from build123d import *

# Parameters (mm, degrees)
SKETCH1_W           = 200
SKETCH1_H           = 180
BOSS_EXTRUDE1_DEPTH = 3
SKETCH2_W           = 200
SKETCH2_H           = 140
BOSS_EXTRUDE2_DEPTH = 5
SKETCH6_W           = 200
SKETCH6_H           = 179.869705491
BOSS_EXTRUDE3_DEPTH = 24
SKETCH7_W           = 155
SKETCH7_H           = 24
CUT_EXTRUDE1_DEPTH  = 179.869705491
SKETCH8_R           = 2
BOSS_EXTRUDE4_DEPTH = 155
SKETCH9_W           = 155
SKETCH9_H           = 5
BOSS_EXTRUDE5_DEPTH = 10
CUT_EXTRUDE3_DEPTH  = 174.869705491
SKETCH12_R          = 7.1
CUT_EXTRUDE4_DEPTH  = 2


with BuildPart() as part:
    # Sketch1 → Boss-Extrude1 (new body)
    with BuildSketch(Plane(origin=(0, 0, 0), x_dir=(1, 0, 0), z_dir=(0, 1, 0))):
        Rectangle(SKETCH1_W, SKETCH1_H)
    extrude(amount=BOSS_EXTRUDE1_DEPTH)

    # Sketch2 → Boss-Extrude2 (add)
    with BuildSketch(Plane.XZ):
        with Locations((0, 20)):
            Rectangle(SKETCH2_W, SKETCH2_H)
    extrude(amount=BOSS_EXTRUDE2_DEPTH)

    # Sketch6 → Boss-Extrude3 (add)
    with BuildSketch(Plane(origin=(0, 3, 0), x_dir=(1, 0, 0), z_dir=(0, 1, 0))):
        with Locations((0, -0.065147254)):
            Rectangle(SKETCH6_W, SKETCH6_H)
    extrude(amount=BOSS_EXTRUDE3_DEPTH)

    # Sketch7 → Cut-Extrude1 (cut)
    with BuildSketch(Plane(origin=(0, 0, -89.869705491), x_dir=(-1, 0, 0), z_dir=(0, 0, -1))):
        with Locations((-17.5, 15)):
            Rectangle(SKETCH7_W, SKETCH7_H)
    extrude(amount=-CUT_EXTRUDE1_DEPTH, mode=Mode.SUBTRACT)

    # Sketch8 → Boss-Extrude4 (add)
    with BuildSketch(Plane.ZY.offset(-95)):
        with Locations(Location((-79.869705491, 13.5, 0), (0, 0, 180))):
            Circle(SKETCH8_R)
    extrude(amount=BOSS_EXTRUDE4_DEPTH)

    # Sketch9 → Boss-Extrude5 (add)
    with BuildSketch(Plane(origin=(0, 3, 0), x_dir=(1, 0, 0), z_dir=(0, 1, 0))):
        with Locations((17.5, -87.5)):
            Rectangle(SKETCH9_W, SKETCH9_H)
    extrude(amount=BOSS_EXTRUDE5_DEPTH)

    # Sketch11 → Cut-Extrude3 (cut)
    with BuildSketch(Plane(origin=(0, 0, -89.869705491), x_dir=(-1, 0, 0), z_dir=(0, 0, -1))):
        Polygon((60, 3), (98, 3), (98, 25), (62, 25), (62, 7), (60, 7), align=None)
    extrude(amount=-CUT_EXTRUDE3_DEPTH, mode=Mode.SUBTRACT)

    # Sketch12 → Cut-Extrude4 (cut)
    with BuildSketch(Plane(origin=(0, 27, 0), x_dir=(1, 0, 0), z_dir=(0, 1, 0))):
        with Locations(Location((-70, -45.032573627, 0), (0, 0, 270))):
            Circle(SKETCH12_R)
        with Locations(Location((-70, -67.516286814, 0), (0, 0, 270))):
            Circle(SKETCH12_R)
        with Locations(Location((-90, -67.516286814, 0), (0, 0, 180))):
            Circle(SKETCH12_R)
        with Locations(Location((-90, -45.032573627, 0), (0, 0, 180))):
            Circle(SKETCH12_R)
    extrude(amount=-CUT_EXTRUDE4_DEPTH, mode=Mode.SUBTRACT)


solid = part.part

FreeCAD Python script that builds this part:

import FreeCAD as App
import Part
import Sketcher

V = App.Vector
Q = App.Units.Quantity


def add_polygon(sketch, points):
    """Adds a closed chain of lines whose ends are joined by coincident constraints."""
    first, n = sketch.GeometryCount, len(points)
    for a, b in zip(points, points[1:] + points[:1]):
        sketch.addGeometry(Part.LineSegment(App.Vector(*a, 0), App.Vector(*b, 0)), False)
    for i in range(n):
        sketch.addConstraint(Sketcher.Constraint("Coincident", first + i, 2, first + (i + 1) % n, 1))

doc = App.newDocument("Part")
body = doc.addObject("PartDesign::Body", "Body")

# Sketch on XZ plane
sketch1 = doc.addObject("Sketcher::SketchObject", "Sketch")
body.addObject(sketch1)
sketch1.AttachmentSupport = (doc.XZ_Plane, [""])
sketch1.MapMode = "FlatFace"
add_polygon(sketch1, [(-100, -90), (-100, 90), (100, 90), (100, -90)])  # lines 0-3
sketch1.addConstraint([
    Sketcher.Constraint("Vertical", 0),
    Sketcher.Constraint("Horizontal", 1),
    Sketcher.Constraint("Vertical", 2),
    Sketcher.Constraint("Horizontal", 3),
    Sketcher.Constraint("Symmetric", 0, 2, 2, 2, -1, 1),
    Sketcher.Constraint("DistanceX", 1, 1, 1, 2, Q("200 mm")),
    Sketcher.Constraint("DistanceY", 0, 1, 0, 2, Q("180 mm")),
])
pad1 = doc.addObject("PartDesign::Pad", "Pad")
body.addObject(pad1)
pad1.Profile = sketch1
pad1.Length = 3
pad1.Reversed = True

# Sketch on XZ plane
sketch2 = doc.addObject("Sketcher::SketchObject", "Sketch001")
body.addObject(sketch2)
sketch2.AttachmentSupport = (doc.XZ_Plane, [""])
sketch2.MapMode = "FlatFace"
add_polygon(sketch2, [(-100, 90), (-100, -50), (100, -50), (100, 90)])  # lines 0-3
sketch2.addConstraint([
    Sketcher.Constraint("Vertical", 0),
    Sketcher.Constraint("Horizontal", 1),
    Sketcher.Constraint("Vertical", 2),
    Sketcher.Constraint("Horizontal", 3),
    Sketcher.Constraint("DistanceX", 1, 1, 1, 2, Q("200 mm")),
    Sketcher.Constraint("DistanceY", 0, 2, 0, 1, Q("140 mm")),
    Sketcher.Constraint("DistanceX", 0, 2, -1, 1, Q("100 mm")),
    Sketcher.Constraint("DistanceY", 0, 2, -1, 1, Q("50 mm")),
])
pad2 = doc.addObject("PartDesign::Pad", "Pad001")
body.addObject(pad2)
pad2.Profile = sketch2
pad2.Length = 5

# Sketch on XZ plane
sketch3 = doc.addObject("Sketcher::SketchObject", "Sketch002")
body.addObject(sketch3)
sketch3.AttachmentSupport = (doc.XZ_Plane, [""])
sketch3.MapMode = "FlatFace"
sketch3.AttachmentOffset = App.Placement(V(0, 0, -3), App.Rotation())
add_polygon(sketch3, [(-100, -90), (-100, 90), (100, 90), (100, -90)])  # lines 0-3
sketch3.addConstraint([
    Sketcher.Constraint("Vertical", 0),
    Sketcher.Constraint("Horizontal", 1),
    Sketcher.Constraint("Vertical", 2),
    Sketcher.Constraint("Horizontal", 3),
    Sketcher.Constraint("DistanceX", 1, 1, 1, 2, Q("200 mm")),
    Sketcher.Constraint("DistanceX", 0, 2, -1, 1, Q("100 mm")),
    Sketcher.Constraint("DistanceY", -1, 1, 0, 2, Q("90 mm")),
    Sketcher.Constraint("DistanceY", 0, 1, 0, 2, Q("179.869705 mm")),
])
pad3 = doc.addObject("PartDesign::Pad", "Pad002")
body.addObject(pad3)
pad3.Profile = sketch3
pad3.Length = 24
pad3.Reversed = True

# Sketch on XY plane
sketch4 = doc.addObject("Sketcher::SketchObject", "Sketch003")
body.addObject(sketch4)
sketch4.AttachmentSupport = (doc.XY_Plane, [""])
sketch4.MapMode = "FlatFace"
sketch4.AttachmentOffset = App.Placement(V(0, 0, -89.869705), App.Rotation())
add_polygon(sketch4, [(95, 27), (95, 3), (-60, 3), (-60, 27)])  # lines 0-3
sketch4.addConstraint([
    Sketcher.Constraint("Vertical", 0),
    Sketcher.Constraint("Horizontal", 1),
    Sketcher.Constraint("Vertical", 2),
    Sketcher.Constraint("Horizontal", 3),
    Sketcher.Constraint("DistanceX", 1, 2, 1, 1, Q("155 mm")),
    Sketcher.Constraint("DistanceY", 0, 2, 0, 1, Q("24 mm")),
    Sketcher.Constraint("DistanceX", -1, 1, 0, 2, Q("95 mm")),
    Sketcher.Constraint("DistanceY", -1, 1, 0, 2, Q("3 mm")),
])
pocket1 = doc.addObject("PartDesign::Pocket", "Pocket")
body.addObject(pocket1)
pocket1.Profile = sketch4
pocket1.Length = 179.869705
pocket1.Reversed = True

# Sketch on YZ plane
sketch5 = doc.addObject("Sketcher::SketchObject", "Sketch004")
body.addObject(sketch5)
sketch5.AttachmentSupport = (doc.YZ_Plane, [""])
sketch5.MapMode = "FlatFace"
sketch5.AttachmentOffset = App.Placement(V(0, 0, 95), App.Rotation())
sketch5.addGeometry(Part.Circle(V(13.5, -79.9, 0), V(0, 0, 1), 2), False)
sketch5.addConstraint([
    Sketcher.Constraint("Diameter", 0, Q("4 mm")),
    Sketcher.Constraint("DistanceX", -1, 1, 0, 3, Q("13.5 mm")),
    Sketcher.Constraint("DistanceY", 0, 3, -1, 1, Q("79.869705 mm")),
])
pad4 = doc.addObject("PartDesign::Pad", "Pad003")
body.addObject(pad4)
pad4.Profile = sketch5
pad4.Length = 155
pad4.Reversed = True

# Sketch on XZ plane
sketch6 = doc.addObject("Sketcher::SketchObject", "Sketch005")
body.addObject(sketch6)
sketch6.AttachmentSupport = (doc.XZ_Plane, [""])
sketch6.MapMode = "FlatFace"
sketch6.AttachmentOffset = App.Placement(V(0, 0, -3), App.Rotation())
add_polygon(sketch6, [(-60, 85), (-60, 90), (95, 90), (95, 85)])  # lines 0-3
sketch6.addConstraint([
    Sketcher.Constraint("Vertical", 0),
    Sketcher.Constraint("Horizontal", 1),
    Sketcher.Constraint("Vertical", 2),
    Sketcher.Constraint("Horizontal", 3),
    Sketcher.Constraint("DistanceX", 1, 1, 1, 2, Q("155 mm")),
    Sketcher.Constraint("DistanceY", 0, 1, 0, 2, Q("5 mm")),
    Sketcher.Constraint("DistanceX", 0, 2, -1, 1, Q("60 mm")),
    Sketcher.Constraint("DistanceY", -1, 1, 0, 2, Q("90 mm")),
])
pad5 = doc.addObject("PartDesign::Pad", "Pad004")
body.addObject(pad5)
pad5.Profile = sketch6
pad5.Length = 10
pad5.Reversed = True

# Sketch on XY plane
sketch7 = doc.addObject("Sketcher::SketchObject", "Sketch006")
body.addObject(sketch7)
sketch7.AttachmentSupport = (doc.XY_Plane, [""])
sketch7.MapMode = "FlatFace"
sketch7.AttachmentOffset = App.Placement(V(0, 0, -89.869705), App.Rotation())
add_polygon(sketch7, [(-60, 3), (-98, 3), (-98, 25), (-62, 25), (-62, 7), (-60, 7)])  # lines 0-5
sketch7.addConstraint([
    Sketcher.Constraint("Horizontal", 0),
    Sketcher.Constraint("Vertical", 1),
    Sketcher.Constraint("Horizontal", 2),
    Sketcher.Constraint("Vertical", 3),
    Sketcher.Constraint("Horizontal", 4),
    Sketcher.Constraint("Vertical", 5),
    Sketcher.Constraint("DistanceX", 0, 2, 0, 1, Q("38 mm")),
    Sketcher.Constraint("DistanceX", 2, 1, 2, 2, Q("36 mm")),
    Sketcher.Constraint("DistanceY", 1, 1, 1, 2, Q("22 mm")),
    Sketcher.Constraint("DistanceY", 3, 2, 3, 1, Q("18 mm")),
    Sketcher.Constraint("DistanceX", 0, 2, -1, 1, Q("98 mm")),
    Sketcher.Constraint("DistanceY", -1, 1, 0, 2, Q("3 mm")),
])
pocket2 = doc.addObject("PartDesign::Pocket", "Pocket001")
body.addObject(pocket2)
pocket2.Profile = sketch7
pocket2.Length = 174.869705
pocket2.Reversed = True

# Sketch on XZ plane
sketch8 = doc.addObject("Sketcher::SketchObject", "Sketch007")
body.addObject(sketch8)
sketch8.AttachmentSupport = (doc.XZ_Plane, [""])
sketch8.MapMode = "FlatFace"
sketch8.AttachmentOffset = App.Placement(V(0, 0, -27), App.Rotation())
sketch8.addGeometry([
    Part.Circle(V(-70, 45, 0), V(0, 0, 1), 7),
    Part.Circle(V(-70, 68, 0), V(0, 0, 1), 7),
    Part.Circle(V(-90, 68, 0), V(0, 0, 1), 7),
    Part.Circle(V(-90, 45, 0), V(0, 0, 1), 7),
], False)
sketch8.addConstraint([
    Sketcher.Constraint("Equal", 0, 1),
    Sketcher.Constraint("Equal", 1, 2),
    Sketcher.Constraint("Equal", 2, 3),
    Sketcher.Constraint("Horizontal", 1, 3, 2, 3),
    Sketcher.Constraint("Horizontal", 0, 3, 3, 3),
    Sketcher.Constraint("Vertical", 0, 3, 1, 3),
    Sketcher.Constraint("Vertical", 2, 3, 3, 3),
    Sketcher.Constraint("Diameter", 0, Q("14.2 mm")),
    Sketcher.Constraint("DistanceX", 0, 3, -1, 1, Q("70 mm")),
    Sketcher.Constraint("DistanceX", 2, 3, -1, 1, Q("90 mm")),
    Sketcher.Constraint("DistanceY", -1, 1, 0, 3, Q("45.032574 mm")),
    Sketcher.Constraint("DistanceY", -1, 1, 1, 3, Q("67.516287 mm")),
])
pocket3 = doc.addObject("PartDesign::Pocket", "Pocket002")
body.addObject(pocket3)
pocket3.Profile = sketch8
pocket3.Length = 2
pocket3.Reversed = True

doc.recompute()
